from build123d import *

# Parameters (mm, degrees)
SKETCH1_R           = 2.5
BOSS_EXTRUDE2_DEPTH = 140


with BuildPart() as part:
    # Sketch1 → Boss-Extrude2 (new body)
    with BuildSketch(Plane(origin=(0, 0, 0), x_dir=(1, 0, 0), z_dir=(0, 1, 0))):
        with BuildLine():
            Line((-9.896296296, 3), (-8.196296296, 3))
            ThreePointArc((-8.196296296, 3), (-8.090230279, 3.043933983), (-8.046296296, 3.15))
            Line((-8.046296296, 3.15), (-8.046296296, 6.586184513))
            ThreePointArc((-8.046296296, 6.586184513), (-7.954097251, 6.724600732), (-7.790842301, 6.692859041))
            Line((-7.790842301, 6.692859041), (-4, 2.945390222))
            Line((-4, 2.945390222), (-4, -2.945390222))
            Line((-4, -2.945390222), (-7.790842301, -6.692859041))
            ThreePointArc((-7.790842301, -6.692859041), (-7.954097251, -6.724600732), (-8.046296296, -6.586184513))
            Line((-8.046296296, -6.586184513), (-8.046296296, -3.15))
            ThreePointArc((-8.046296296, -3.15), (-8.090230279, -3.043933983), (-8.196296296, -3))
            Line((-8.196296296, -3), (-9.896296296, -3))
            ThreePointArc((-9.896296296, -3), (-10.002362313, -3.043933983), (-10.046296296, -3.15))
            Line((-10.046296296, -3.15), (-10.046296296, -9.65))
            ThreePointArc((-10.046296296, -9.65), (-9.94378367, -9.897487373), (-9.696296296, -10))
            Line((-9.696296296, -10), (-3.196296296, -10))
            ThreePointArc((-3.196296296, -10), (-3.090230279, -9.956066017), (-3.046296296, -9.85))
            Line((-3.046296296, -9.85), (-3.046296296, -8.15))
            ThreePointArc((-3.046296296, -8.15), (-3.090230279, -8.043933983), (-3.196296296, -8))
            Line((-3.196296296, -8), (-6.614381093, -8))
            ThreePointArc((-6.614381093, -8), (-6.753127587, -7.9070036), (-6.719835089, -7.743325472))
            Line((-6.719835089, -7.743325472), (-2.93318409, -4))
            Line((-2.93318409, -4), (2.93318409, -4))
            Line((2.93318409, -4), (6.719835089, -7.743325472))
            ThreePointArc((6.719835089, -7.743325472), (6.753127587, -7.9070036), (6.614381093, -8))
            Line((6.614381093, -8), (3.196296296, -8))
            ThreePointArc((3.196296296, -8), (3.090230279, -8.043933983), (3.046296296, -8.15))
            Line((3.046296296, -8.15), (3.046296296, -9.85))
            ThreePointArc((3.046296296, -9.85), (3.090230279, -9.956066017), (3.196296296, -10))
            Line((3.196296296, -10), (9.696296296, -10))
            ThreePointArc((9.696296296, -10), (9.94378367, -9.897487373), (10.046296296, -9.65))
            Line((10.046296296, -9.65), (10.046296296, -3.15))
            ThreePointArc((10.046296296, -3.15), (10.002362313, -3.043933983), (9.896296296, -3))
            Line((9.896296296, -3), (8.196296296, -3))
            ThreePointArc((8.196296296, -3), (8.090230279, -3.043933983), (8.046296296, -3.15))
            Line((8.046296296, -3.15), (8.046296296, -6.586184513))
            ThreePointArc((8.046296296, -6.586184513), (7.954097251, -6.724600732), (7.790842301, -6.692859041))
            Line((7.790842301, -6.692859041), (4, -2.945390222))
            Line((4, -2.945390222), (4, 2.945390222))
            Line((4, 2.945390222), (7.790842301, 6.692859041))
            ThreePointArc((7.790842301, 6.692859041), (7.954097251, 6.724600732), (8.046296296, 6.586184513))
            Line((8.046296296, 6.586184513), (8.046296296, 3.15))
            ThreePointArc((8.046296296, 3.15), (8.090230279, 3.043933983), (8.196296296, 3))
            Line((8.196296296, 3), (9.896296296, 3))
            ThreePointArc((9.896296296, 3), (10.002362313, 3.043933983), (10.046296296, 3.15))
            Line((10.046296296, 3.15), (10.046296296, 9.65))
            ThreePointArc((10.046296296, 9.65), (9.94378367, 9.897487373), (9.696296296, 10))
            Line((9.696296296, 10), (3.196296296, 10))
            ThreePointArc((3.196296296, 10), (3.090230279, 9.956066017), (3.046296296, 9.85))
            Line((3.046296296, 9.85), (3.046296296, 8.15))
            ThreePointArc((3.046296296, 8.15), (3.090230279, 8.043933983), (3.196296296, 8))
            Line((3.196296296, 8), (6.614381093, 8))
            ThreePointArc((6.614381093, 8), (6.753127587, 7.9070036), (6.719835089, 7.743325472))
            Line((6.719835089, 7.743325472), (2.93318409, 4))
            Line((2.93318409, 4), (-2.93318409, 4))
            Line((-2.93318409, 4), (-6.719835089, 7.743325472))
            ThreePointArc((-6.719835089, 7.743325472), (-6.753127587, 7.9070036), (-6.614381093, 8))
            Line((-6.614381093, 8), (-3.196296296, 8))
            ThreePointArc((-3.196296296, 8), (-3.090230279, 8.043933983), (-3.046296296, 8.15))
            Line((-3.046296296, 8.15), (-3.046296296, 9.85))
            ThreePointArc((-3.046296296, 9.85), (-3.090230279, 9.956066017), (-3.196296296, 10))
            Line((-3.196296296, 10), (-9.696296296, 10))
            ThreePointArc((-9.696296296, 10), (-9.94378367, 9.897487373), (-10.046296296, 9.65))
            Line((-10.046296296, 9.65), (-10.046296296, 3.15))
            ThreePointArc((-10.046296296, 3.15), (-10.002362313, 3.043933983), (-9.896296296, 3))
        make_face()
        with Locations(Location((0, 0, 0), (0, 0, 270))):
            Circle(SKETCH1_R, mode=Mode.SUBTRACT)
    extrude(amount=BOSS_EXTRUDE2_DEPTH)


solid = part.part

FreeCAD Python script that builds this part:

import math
import FreeCAD as App
import Part
import Sketcher
Q = App.Units.Quantity

doc = App.newDocument("Part")
params = doc.addObject("Spreadsheet::Sheet", "Params")
for row, (alias, value) in enumerate([
    ("sketch1_diameter", "5 mm"),
    ("sketch1_radius", "0.15 mm"),
    ("sketch1_radius2", "0.35 mm"),
    ("sketch1_width", "1.7 mm"),
    ("sketch1_width2", "6.5 mm"),
    ("pad1_length", "140 mm"),
], start=1):
    params.set(f"A{row}", alias)
    params.set(f"B{row}", "=" + value)
    params.setAlias(f"B{row}", alias)

body = doc.addObject("PartDesign::Body", "Body")

# Sketch on XZ plane
sketch1 = doc.addObject("Sketcher::SketchObject", "Sketch")
body.addObject(sketch1)
sketch1.AttachmentSupport = (doc.XZ_Plane, [""])
sketch1.MapMode = "FlatFace"
sketch1.addGeometry([
    Part.LineSegment(App.Vector(-9.9, -3, 0), App.Vector(-8.2, -3, 0)),  # 0
    Part.ArcOfCircle(Part.Circle(App.Vector(-8.2, -3.15, 0), App.Vector(0, 0, 1), 0.15), math.radians(0), math.radians(90)),  # 1
    Part.LineSegment(App.Vector(-8.05, -3.15, 0), App.Vector(-8.05, -6.59, 0)),  # 2
    Part.ArcOfCircle(Part.Circle(App.Vector(-7.9, -6.59, 0), App.Vector(0, 0, 1), 0.15), math.radians(180), math.radians(315)),  # 3
    Part.LineSegment(App.Vector(-7.79, -6.69, 0), App.Vector(-4, -2.95, 0)),  # 4
    Part.LineSegment(App.Vector(-4, -2.95, 0), App.Vector(-4, 2.95, 0)),  # 5
    Part.LineSegment(App.Vector(-4, 2.95, 0), App.Vector(-7.79, 6.69, 0)),  # 6
    Part.ArcOfCircle(Part.Circle(App.Vector(-7.9, 6.59, 0), App.Vector(0, 0, 1), 0.15), math.radians(45), math.radians(180)),  # 7
    Part.LineSegment(App.Vector(-8.05, 6.59, 0), App.Vector(-8.05, 3.15, 0)),  # 8
    Part.ArcOfCircle(Part.Circle(App.Vector(-8.2, 3.15, 0), App.Vector(0, 0, 1), 0.15), math.radians(-90), math.radians(0)),  # 9
    Part.LineSegment(App.Vector(-8.2, 3, 0), App.Vector(-9.9, 3, 0)),  # 10
    Part.ArcOfCircle(Part.Circle(App.Vector(-9.9, 3.15, 0), App.Vector(0, 0, 1), 0.15), math.radians(-180), math.radians(-90)),  # 11
    Part.LineSegment(App.Vector(-10.05, 3.15, 0), App.Vector(-10.05, 9.65, 0)),  # 12
    Part.ArcOfCircle(Part.Circle(App.Vector(-9.7, 9.65, 0), App.Vector(0, 0, 1), 0.35), math.radians(90), math.radians(180)),  # 13
    Part.LineSegment(App.Vector(-9.7, 10, 0), App.Vector(-3.2, 10, 0)),  # 14
    Part.ArcOfCircle(Part.Circle(App.Vector(-3.2, 9.85, 0), App.Vector(0, 0, 1), 0.15), math.radians(0), math.radians(90)),  # 15
    Part.LineSegment(App.Vector(-3.05, 9.85, 0), App.Vector(-3.05, 8.15, 0)),  # 16
    Part.ArcOfCircle(Part.Circle(App.Vector(-3.2, 8.15, 0), App.Vector(0, 0, 1), 0.15), math.radians(-90), math.radians(0)),  # 17
    Part.LineSegment(App.Vector(-3.2, 8, 0), App.Vector(-6.61, 8, 0)),  # 18
    Part.ArcOfCircle(Part.Circle(App.Vector(-6.61, 7.85, 0), App.Vector(0, 0, 1), 0.15), math.radians(90), math.radians(225)),  # 19
    Part.LineSegment(App.Vector(-6.72, 7.74, 0), App.Vector(-2.93, 4, 0)),  # 20
    Part.LineSegment(App.Vector(-2.93, 4, 0), App.Vector(2.93, 4, 0)),  # 21
    Part.LineSegment(App.Vector(2.93, 4, 0), App.Vector(6.72, 7.74, 0)),  # 22
    Part.ArcOfCircle(Part.Circle(App.Vector(6.61, 7.85, 0), App.Vector(0, 0, 1), 0.15), math.radians(-45), math.radians(90)),  # 23
    Part.LineSegment(App.Vector(6.61, 8, 0), App.Vector(3.2, 8, 0)),  # 24
    Part.ArcOfCircle(Part.Circle(App.Vector(3.2, 8.15, 0), App.Vector(0, 0, 1), 0.15), math.radians(-180), math.radians(-90)),  # 25
    Part.LineSegment(App.Vector(3.05, 8.15, 0), App.Vector(3.05, 9.85, 0)),  # 26
    Part.ArcOfCircle(Part.Circle(App.Vector(3.2, 9.85, 0), App.Vector(0, 0, 1), 0.15), math.radians(90), math.radians(180)),  # 27
    Part.LineSegment(App.Vector(3.2, 10, 0), App.Vector(9.7, 10, 0)),  # 28
    Part.ArcOfCircle(Part.Circle(App.Vector(9.7, 9.65, 0), App.Vector(0, 0, 1), 0.35), math.radians(0), math.radians(90)),  # 29
    Part.LineSegment(App.Vector(10.05, 9.65, 0), App.Vector(10.05, 3.15, 0)),  # 30
    Part.ArcOfCircle(Part.Circle(App.Vector(9.9, 3.15, 0), App.Vector(0, 0, 1), 0.15), math.radians(-90), math.radians(0)),  # 31
    Part.LineSegment(App.Vector(9.9, 3, 0), App.Vector(8.2, 3, 0)),  # 32
    Part.ArcOfCircle(Part.Circle(App.Vector(8.2, 3.15, 0), App.Vector(0, 0, 1), 0.15), math.radians(-180), math.radians(-90)),  # 33
    Part.LineSegment(App.Vector(8.05, 3.15, 0), App.Vector(8.05, 6.59, 0)),  # 34
    Part.ArcOfCircle(Part.Circle(App.Vector(7.9, 6.59, 0), App.Vector(0, 0, 1), 0.15), math.radians(0), math.radians(135)),  # 35
    Part.LineSegment(App.Vector(7.79, 6.69, 0), App.Vector(4, 2.95, 0)),  # 36
    Part.LineSegment(App.Vector(4, 2.95, 0), App.Vector(4, -2.95, 0)),  # 37
    Part.LineSegment(App.Vector(4, -2.95, 0), App.Vector(7.79, -6.69, 0)),  # 38
    Part.ArcOfCircle(Part.Circle(App.Vector(7.9, -6.59, 0), App.Vector(0, 0, 1), 0.15), math.radians(-135), math.radians(0)),  # 39
    Part.LineSegment(App.Vector(8.05, -6.59, 0), App.Vector(8.05, -3.15, 0)),  # 40
    Part.ArcOfCircle(Part.Circle(App.Vector(8.2, -3.15, 0), App.Vector(0, 0, 1), 0.15), math.radians(90), math.radians(180)),  # 41
    Part.LineSegment(App.Vector(8.2, -3, 0), App.Vector(9.9, -3, 0)),  # 42
    Part.ArcOfCircle(Part.Circle(App.Vector(9.9, -3.15, 0), App.Vector(0, 0, 1), 0.15), math.radians(0), math.radians(90)),  # 43
    Part.LineSegment(App.Vector(10.05, -3.15, 0), App.Vector(10.05, -9.65, 0)),  # 44
    Part.ArcOfCircle(Part.Circle(App.Vector(9.7, -9.65, 0), App.Vector(0, 0, 1), 0.35), math.radians(-90), math.radians(0)),  # 45
    Part.LineSegment(App.Vector(9.7, -10, 0), App.Vector(3.2, -10, 0)),  # 46
    Part.ArcOfCircle(Part.Circle(App.Vector(3.2, -9.85, 0), App.Vector(0, 0, 1), 0.15), math.radians(-180), math.radians(-90)),  # 47
    Part.LineSegment(App.Vector(3.05, -9.85, 0), App.Vector(3.05, -8.15, 0)),  # 48
    Part.ArcOfCircle(Part.Circle(App.Vector(3.2, -8.15, 0), App.Vector(0, 0, 1), 0.15), math.radians(90), math.radians(180)),  # 49
    Part.LineSegment(App.Vector(3.2, -8, 0), App.Vector(6.61, -8, 0)),  # 50
    Part.ArcOfCircle(Part.Circle(App.Vector(6.61, -7.85, 0), App.Vector(0, 0, 1), 0.15), math.radians(-90), math.radians(45)),  # 51
    Part.LineSegment(App.Vector(6.72, -7.74, 0), App.Vector(2.93, -4, 0)),  # 52
    Part.LineSegment(App.Vector(2.93, -4, 0), App.Vector(-2.93, -4, 0)),  # 53
    Part.LineSegment(App.Vector(-2.93, -4, 0), App.Vector(-6.72, -7.74, 0)),  # 54
    Part.ArcOfCircle(Part.Circle(App.Vector(-6.61, -7.85, 0), App.Vector(0, 0, 1), 0.15), math.radians(135), math.radians(270)),  # 55
    Part.LineSegment(App.Vector(-6.61, -8, 0), App.Vector(-3.2, -8, 0)),  # 56
    Part.ArcOfCircle(Part.Circle(App.Vector(-3.2, -8.15, 0), App.Vector(0, 0, 1), 0.15), math.radians(0), math.radians(90)),  # 57
    Part.LineSegment(App.Vector(-3.05, -8.15, 0), App.Vector(-3.05, -9.85, 0)),  # 58
    Part.ArcOfCircle(Part.Circle(App.Vector(-3.2, -9.85, 0), App.Vector(0, 0, 1), 0.15), math.radians(-90), math.radians(0)),  # 59
    Part.LineSegment(App.Vector(-3.2, -10, 0), App.Vector(-9.7, -10, 0)),  # 60
    Part.ArcOfCircle(Part.Circle(App.Vector(-9.7, -9.65, 0), App.Vector(0, 0, 1), 0.35), math.radians(180), math.radians(270)),  # 61
    Part.LineSegment(App.Vector(-10.05, -9.65, 0), App.Vector(-10.05, -3.15, 0)),  # 62
    Part.ArcOfCircle(Part.Circle(App.Vector(-9.9, -3.15, 0), App.Vector(0, 0, 1), 0.15), math.radians(90), math.radians(180)),  # 63
    Part.Circle(App.Vector(0, 0, 0), App.Vector(0, 0, 1), 2.5),  # 64
], False)
sketch1.addConstraint([
    Sketcher.Constraint("Tangent", 0, 2, 1, 2),
    Sketcher.Constraint("Tangent", 1, 1, 2, 1),
    Sketcher.Constraint("Tangent", 2, 2, 3, 1),
    Sketcher.Constraint("Tangent", 3, 2, 4, 1),
    Sketcher.Constraint("Coincident", 4, 2, 5, 1),
    Sketcher.Constraint("Coincident", 5, 2, 6, 1),
    Sketcher.Constraint("Tangent", 6, 2, 7, 1),
    Sketcher.Constraint("Tangent", 7, 2, 8, 1),
    Sketcher.Constraint("Tangent", 8, 2, 9, 2),
    Sketcher.Constraint("Tangent", 9, 1, 10, 1),
    Sketcher.Constraint("Tangent", 10, 2, 11, 2),
    Sketcher.Constraint("Tangent", 11, 1, 12, 1),
    Sketcher.Constraint("Tangent", 12, 2, 13, 2),
    Sketcher.Constraint("Tangent", 13, 1, 14, 1),
    Sketcher.Constraint("Tangent", 14, 2, 15, 2),
    Sketcher.Constraint("Tangent", 15, 1, 16, 1),
    Sketcher.Constraint("Tangent", 16, 2, 17, 2),
    Sketcher.Constraint("Tangent", 17, 1, 18, 1),
    Sketcher.Constraint("Tangent", 18, 2, 19, 1),
    Sketcher.Constraint("Tangent", 19, 2, 20, 1),
    Sketcher.Constraint("Coincident", 20, 2, 21, 1),
    Sketcher.Constraint("Coincident", 21, 2, 22, 1),
    Sketcher.Constraint("Tangent", 22, 2, 23, 1),
    Sketcher.Constraint("Tangent", 23, 2, 24, 1),
    Sketcher.Constraint("Tangent", 24, 2, 25, 2),
    Sketcher.Constraint("Tangent", 25, 1, 26, 1),
    Sketcher.Constraint("Tangent", 26, 2, 27, 2),
    Sketcher.Constraint("Tangent", 27, 1, 28, 1),
    Sketcher.Constraint("Tangent", 28, 2, 29, 2),
    Sketcher.Constraint("Tangent", 29, 1, 30, 1),
    Sketcher.Constraint("Tangent", 30, 2, 31, 2),
    Sketcher.Constraint("Tangent", 31, 1, 32, 1),
    Sketcher.Constraint("Tangent", 32, 2, 33, 2),
    Sketcher.Constraint("Tangent", 33, 1, 34, 1),
    Sketcher.Constraint("Tangent", 34, 2, 35, 1),
    Sketcher.Constraint("Tangent", 35, 2, 36, 1),
    Sketcher.Constraint("Coincident", 36, 2, 37, 1),
    Sketcher.Constraint("Coincident", 37, 2, 38, 1),
    Sketcher.Constraint("Tangent", 38, 2, 39, 1),
    Sketcher.Constraint("Tangent", 39, 2, 40, 1),
    Sketcher.Constraint("Tangent", 40, 2, 41, 2),
    Sketcher.Constraint("Tangent", 41, 1, 42, 1),
    Sketcher.Constraint("Tangent", 42, 2, 43, 2),
    Sketcher.Constraint("Tangent", 43, 1, 44, 1),
    Sketcher.Constraint("Tangent", 44, 2, 45, 2),
    Sketcher.Constraint("Tangent", 45, 1, 46, 1),
    Sketcher.Constraint("Tangent", 46, 2, 47, 2),
    Sketcher.Constraint("Tangent", 47, 1, 48, 1),
    Sketcher.Constraint("Tangent", 48, 2, 49, 2),
    Sketcher.Constraint("Tangent", 49, 1, 50, 1),
    Sketcher.Constraint("Tangent", 50, 2, 51, 1),
    Sketcher.Constraint("Tangent", 51, 2, 52, 1),
    Sketcher.Constraint("Coincident", 52, 2, 53, 1),
    Sketcher.Constraint("Coincident", 53, 2, 54, 1),
    Sketcher.Constraint("Tangent", 54, 2, 55, 1),
    Sketcher.Constraint("Tangent", 55, 2, 56, 1),
    Sketcher.Constraint("Tangent", 56, 2, 57, 2),
    Sketcher.Constraint("Tangent", 57, 1, 58, 1),
    Sketcher.Constraint("Tangent", 58, 2, 59, 2),
    Sketcher.Constraint("Tangent", 59, 1, 60, 1),
    Sketcher.Constraint("Tangent", 60, 2, 61, 2),
    Sketcher.Constraint("Tangent", 61, 1, 62, 1),
    Sketcher.Constraint("Tangent", 62, 2, 63, 2),
    Sketcher.Constraint("Tangent", 63, 1, 0, 1),
    Sketcher.Constraint("Horizontal", 0),
    Sketcher.Constraint("Vertical", 2),
    Sketcher.Constraint("Vertical", 5),
    Sketcher.Constraint("Vertical", 8),
    Sketcher.Constraint("Horizontal", 10),
    Sketcher.Constraint("Vertical", 12),
    Sketcher.Constraint("Horizontal", 14),
    Sketcher.Constraint("Vertical", 16),
    Sketcher.Constraint("Horizontal", 18),
    Sketcher.Constraint("Horizontal", 21),
    Sketcher.Constraint("Horizontal", 24),
    Sketcher.Constraint("Vertical", 26),
    Sketcher.Constraint("Horizontal", 28),
    Sketcher.Constraint("Vertical", 30),
    Sketcher.Constraint("Horizontal", 32),
    Sketcher.Constraint("Vertical", 34),
    Sketcher.Constraint("Vertical", 37),
    Sketcher.Constraint("Vertical", 40),
    Sketcher.Constraint("Horizontal", 42),
    Sketcher.Constraint("Vertical", 44),
    Sketcher.Constraint("Horizontal", 46),
    Sketcher.Constraint("Vertical", 48),
    Sketcher.Constraint("Horizontal", 50),
    Sketcher.Constraint("Horizontal", 53),
    Sketcher.Constraint("Horizontal", 56),
    Sketcher.Constraint("Vertical", 58),
    Sketcher.Constraint("Horizontal", 60),
    Sketcher.Constraint("Vertical", 62),
    Sketcher.Constraint("Coincident", 64, 3, -1, 1),
    Sketcher.Constraint("Equal", 1, 3),
    Sketcher.Constraint("Equal", 3, 7),
    Sketcher.Constraint("Equal", 7, 9),
    Sketcher.Constraint("Equal", 9, 11),
    Sketcher.Constraint("Equal", 11, 15),
    Sketcher.Constraint("Equal", 15, 17),
    Sketcher.Constraint("Equal", 17, 19),
    Sketcher.Constraint("Equal", 19, 23),
    Sketcher.Constraint("Equal", 23, 25),
    Sketcher.Constraint("Equal", 25, 27),
    Sketcher.Constraint("Equal", 13, 29),
    Sketcher.Constraint("Equal", 27, 31),
    Sketcher.Constraint("Equal", 31, 33),
    Sketcher.Constraint("Equal", 33, 35),
    Sketcher.Constraint("Equal", 35, 39),
    Sketcher.Constraint("Equal", 39, 41),
    Sketcher.Constraint("Equal", 41, 43),
    Sketcher.Constraint("Equal", 29, 45),
    Sketcher.Constraint("Equal", 43, 47),
    Sketcher.Constraint("Equal", 47, 49),
    Sketcher.Constraint("Equal", 49, 51),
    Sketcher.Constraint("Equal", 51, 55),
    Sketcher.Constraint("Equal", 55, 57),
    Sketcher.Constraint("Equal", 57, 59),
    Sketcher.Constraint("Equal", 45, 61),
    Sketcher.Constraint("Equal", 59, 63),
    Sketcher.Constraint("Symmetric", 1, 3, 33, 3, -1, 1),
    Sketcher.Constraint("Symmetric", 7, 3, 39, 3, -1, 1),
    Sketcher.Constraint("Symmetric", 11, 3, 43, 3, -1, 1),
    Sketcher.Constraint("Symmetric", 15, 3, 47, 3, -1, 1),
    Sketcher.Constraint("Symmetric", 19, 3, 51, 3, -1, 1),
    Sketcher.Constraint("Symmetric", 23, 3, 55, 3, -1, 1),
    Sketcher.Constraint("Symmetric", 27, 3, 59, 3, -1, 1),
    Sketcher.Constraint("Symmetric", 3, 2, 35, 2, -1, 1),
    Sketcher.Constraint("Symmetric", 5, 2, 37, 2, -1, 1),
    Sketcher.Constraint("Symmetric", 20, 2, 52, 2, -1, 1),
    Sketcher.Constraint("Symmetric", 19, 3, 23, 3, -2),
    Sketcher.Constraint("Symmetric", 15, 3, 27, 3, -2),
    Sketcher.Constraint("Symmetric", 11, 3, 31, 3, -2),
    Sketcher.Constraint("Symmetric", 7, 3, 35, 3, -2),
    Sketcher.Constraint("Parallel", 6, 20),
    Sketcher.Constraint("Parallel", 4, 22),
    Sketcher.Constraint("Parallel", 36, 54),
    Sketcher.Constraint("Horizontal", 19, 2, 22, 2),
    Sketcher.Constraint("Vertical", 13, 3, 61, 3),
    Sketcher.Constraint("Equal", 60, 12),
    Sketcher.Constraint("Equal", 42, 16),
    Sketcher.Constraint("Diameter", 64, Q("5 mm")),
    Sketcher.Constraint("Radius", 1, Q("0.15 mm")),
    Sketcher.Constraint("Radius", 13, Q("0.35 mm")),
    Sketcher.Constraint("DistanceX", 0, 1, 0, 2, Q("1.7 mm")),
    Sketcher.Constraint("DistanceX", 14, 1, 14, 2, Q("6.5 mm")),
    Sketcher.Constraint("DistanceY", 0, 2, -1, 1, Q("3 mm")),
    Sketcher.Constraint("DistanceX", 4, 2, -1, 1, Q("4 mm")),
    Sketcher.Constraint("DistanceY", -1, 1, 20, 2, Q("4 mm")),
    Sketcher.Constraint("DistanceX", 21, 1, 21, 2, Q("5.866368 mm")),
    Sketcher.Constraint("DistanceY", 5, 1, 5, 2, Q("5.89078 mm")),
    Sketcher.Constraint("Distance", 4, Q("5.330479 mm")),
    Sketcher.Constraint("DistanceX", 18, 2, 18, 1, Q("3.418085 mm")),
])
sketch1.setExpression("Constraints[140]", "Params.sketch1_diameter")
sketch1.setExpression("Constraints[141]", "Params.sketch1_radius")
sketch1.setExpression("Constraints[142]", "Params.sketch1_radius2")
sketch1.setExpression("Constraints[143]", "Params.sketch1_width")
sketch1.setExpression("Constraints[144]", "Params.sketch1_width2")
pad1 = doc.addObject("PartDesign::Pad", "Pad")
body.addObject(pad1)
pad1.Profile = sketch1
pad1.setExpression("Length", "Params.pad1_length")
pad1.Reversed = True

doc.recompute()
